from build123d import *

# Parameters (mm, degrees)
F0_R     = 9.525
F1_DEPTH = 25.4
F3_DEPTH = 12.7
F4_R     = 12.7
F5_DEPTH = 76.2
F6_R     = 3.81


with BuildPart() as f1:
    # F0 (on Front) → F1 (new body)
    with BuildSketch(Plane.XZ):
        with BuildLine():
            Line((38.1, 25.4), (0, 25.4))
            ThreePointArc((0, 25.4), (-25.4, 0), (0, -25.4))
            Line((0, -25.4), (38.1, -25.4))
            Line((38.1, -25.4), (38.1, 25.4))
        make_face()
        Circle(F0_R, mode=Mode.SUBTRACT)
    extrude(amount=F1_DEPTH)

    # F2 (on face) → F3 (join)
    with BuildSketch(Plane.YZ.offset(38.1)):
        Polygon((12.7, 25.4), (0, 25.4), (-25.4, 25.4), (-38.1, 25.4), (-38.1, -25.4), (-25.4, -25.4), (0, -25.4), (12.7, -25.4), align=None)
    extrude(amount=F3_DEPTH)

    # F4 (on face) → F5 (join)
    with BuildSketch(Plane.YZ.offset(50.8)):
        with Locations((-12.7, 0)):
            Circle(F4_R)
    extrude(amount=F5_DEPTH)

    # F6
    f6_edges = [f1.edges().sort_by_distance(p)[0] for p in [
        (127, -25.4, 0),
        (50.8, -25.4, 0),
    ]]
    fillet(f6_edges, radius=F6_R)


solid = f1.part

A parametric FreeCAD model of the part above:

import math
import FreeCAD as App
import Part
import Sketcher

V = App.Vector
Q = App.Units.Quantity


def edges_at(feature, points):
    """Names of the edges that pass closest to the given points."""
    edges = feature.Shape.Edges
    near = lambda p: min(range(len(edges)), key=lambda i: edges[i].distToShape(Part.Vertex(*p))[0])
    return sorted({f"Edge{near(p) + 1}" for p in points})


def add_polygon(sketch, points):
    """Adds a closed chain of lines whose ends are joined by coincident constraints."""
    first, n = sketch.GeometryCount, len(points)
    for a, b in zip(points, points[1:] + points[:1]):
        sketch.addGeometry(Part.LineSegment(App.Vector(*a, 0), App.Vector(*b, 0)), False)
    for i in range(n):
        sketch.addConstraint(Sketcher.Constraint("Coincident", first + i, 2, first + (i + 1) % n, 1))

doc = App.newDocument("Part")
params = doc.addObject("Spreadsheet::Sheet", "Params")
for row, (alias, value) in enumerate([
    ("sketch1_radius", "1 in"),
    ("sketch1_diameter", "0.75 in"),
    ("sketch1_width", "1.5 in"),
    ("pad1_length", "1 in"),
    ("sketch2_width", "2 in"),
    ("pad2_length", "0.5 in"),
    ("sketch3_diameter", "1 in"),
    ("pad3_length", "3 in"),
    ("fillet_radius", "0.15 in"),
], start=1):
    params.set(f"A{row}", alias)
    params.set(f"B{row}", "=" + value)
    params.setAlias(f"B{row}", alias)

body = doc.addObject("PartDesign::Body", "Body")

sketch1 = body.newObject("Sketcher::SketchObject", "Sketch")
sketch1.AttachmentSupport = (doc.getObject("XZ_Plane"), [""])
sketch1.MapMode = "FlatFace"
sketch1.addGeometry([
    Part.LineSegment(V(38.1, 25.4, 0), V(0, 25.4, 0)),
    Part.ArcOfCircle(Part.Circle(V(0, 0, 0), V(0, 0, 1), 25.4), math.radians(90), math.radians(270)),
    Part.LineSegment(V(0, -25.4, 0), V(38.1, -25.4, 0)),
    Part.LineSegment(V(38.1, -25.4, 0), V(38.1, 25.4, 0)),
    Part.Circle(V(0, 0, 0), V(0, 0, 1), 9.525),
], False)
sketch1.addConstraint([
    Sketcher.Constraint("Tangent", 0, 2, 1, 1),
    Sketcher.Constraint("Tangent", 1, 2, 2, 1),
    Sketcher.Constraint("Coincident", 2, 2, 3, 1),
    Sketcher.Constraint("Coincident", 3, 2, 0, 1),
    Sketcher.Constraint("Horizontal", 0),
    Sketcher.Constraint("Horizontal", 2),
    Sketcher.Constraint("Vertical", 3),
    Sketcher.Constraint("Coincident", 1, 3, -1, 1),
    Sketcher.Constraint("Coincident", 4, 3, -1, 1),
    Sketcher.Constraint("Radius", 1, Q("1 in")),
    Sketcher.Constraint("Diameter", 4, Q("0.75 in")),
    Sketcher.Constraint("DistanceX", 0, 2, 0, 1, Q("1.5 in")),
])
sketch1.setExpression("Constraints[9]", "Params.sketch1_radius")
sketch1.setExpression("Constraints[10]", "Params.sketch1_diameter")
sketch1.setExpression("Constraints[11]", "Params.sketch1_width")
pad1 = body.newObject("PartDesign::Pad", "Pad")
pad1.Profile = sketch1
pad1.setExpression("Length", "Params.pad1_length")

sketch2 = body.newObject("Sketcher::SketchObject", "Sketch001")
sketch2.AttachmentSupport = (doc.getObject("YZ_Plane"), [""])
sketch2.MapMode = "FlatFace"
sketch2.AttachmentOffset = App.Placement(V(0, 0, 1.5 * 25.4), App.Rotation())
add_polygon(sketch2, [(12.7, 25.4), (-38.1, 25.4), (-38.1, -25.4), (12.7, -25.4)])
sketch2.addConstraint([
    Sketcher.Constraint("Horizontal", 0),
    Sketcher.Constraint("Vertical", 1),
    Sketcher.Constraint("Horizontal", 2),
    Sketcher.Constraint("Vertical", 3),
    Sketcher.Constraint("Equal", 2, 1),
    Sketcher.Constraint("DistanceX", 0, 2, 0, 1, Q("2 in")),
    Sketcher.Constraint("DistanceY", -1, 1, 0, 2, Q("1 in")),
    Sketcher.Constraint("DistanceX", 0, 2, -1, 1, Q("1.5 in")),
])
sketch2.setExpression("Constraints[9]", "Params.sketch2_width")
pad2 = body.newObject("PartDesign::Pad", "Pad001")
pad2.Profile = sketch2
pad2.setExpression("Length", "Params.pad2_length")

sketch3 = body.newObject("Sketcher::SketchObject", "Sketch002")
sketch3.AttachmentSupport = (doc.getObject("YZ_Plane"), [""])
sketch3.MapMode = "FlatFace"
sketch3.AttachmentOffset = App.Placement(V(0, 0, 2 * 25.4), App.Rotation())
sketch3.addGeometry(Part.Circle(V(-12.7, 0, 0), V(0, 0, 1), 12.7), False)
sketch3.addConstraint([
    Sketcher.Constraint("PointOnObject", 0, 3, -1),
    Sketcher.Constraint("Diameter", 0, Q("1 in")),
    Sketcher.Constraint("DistanceX", 0, 3, -1, 1, Q("0.5 in")),
])
sketch3.setExpression("Constraints[1]", "Params.sketch3_diameter")
pad3 = body.newObject("PartDesign::Pad", "Pad002")
pad3.Profile = sketch3
pad3.setExpression("Length", "Params.pad3_length")
doc.recompute()

fillet = body.newObject("PartDesign::Fillet", "Fillet")
fillet.Base = (pad3, edges_at(pad3, [(127, -25.4, 0), (50.8, -25.4, 0)]))
fillet.setExpression("Radius", "Params.fillet_radius")

doc.recompute()
